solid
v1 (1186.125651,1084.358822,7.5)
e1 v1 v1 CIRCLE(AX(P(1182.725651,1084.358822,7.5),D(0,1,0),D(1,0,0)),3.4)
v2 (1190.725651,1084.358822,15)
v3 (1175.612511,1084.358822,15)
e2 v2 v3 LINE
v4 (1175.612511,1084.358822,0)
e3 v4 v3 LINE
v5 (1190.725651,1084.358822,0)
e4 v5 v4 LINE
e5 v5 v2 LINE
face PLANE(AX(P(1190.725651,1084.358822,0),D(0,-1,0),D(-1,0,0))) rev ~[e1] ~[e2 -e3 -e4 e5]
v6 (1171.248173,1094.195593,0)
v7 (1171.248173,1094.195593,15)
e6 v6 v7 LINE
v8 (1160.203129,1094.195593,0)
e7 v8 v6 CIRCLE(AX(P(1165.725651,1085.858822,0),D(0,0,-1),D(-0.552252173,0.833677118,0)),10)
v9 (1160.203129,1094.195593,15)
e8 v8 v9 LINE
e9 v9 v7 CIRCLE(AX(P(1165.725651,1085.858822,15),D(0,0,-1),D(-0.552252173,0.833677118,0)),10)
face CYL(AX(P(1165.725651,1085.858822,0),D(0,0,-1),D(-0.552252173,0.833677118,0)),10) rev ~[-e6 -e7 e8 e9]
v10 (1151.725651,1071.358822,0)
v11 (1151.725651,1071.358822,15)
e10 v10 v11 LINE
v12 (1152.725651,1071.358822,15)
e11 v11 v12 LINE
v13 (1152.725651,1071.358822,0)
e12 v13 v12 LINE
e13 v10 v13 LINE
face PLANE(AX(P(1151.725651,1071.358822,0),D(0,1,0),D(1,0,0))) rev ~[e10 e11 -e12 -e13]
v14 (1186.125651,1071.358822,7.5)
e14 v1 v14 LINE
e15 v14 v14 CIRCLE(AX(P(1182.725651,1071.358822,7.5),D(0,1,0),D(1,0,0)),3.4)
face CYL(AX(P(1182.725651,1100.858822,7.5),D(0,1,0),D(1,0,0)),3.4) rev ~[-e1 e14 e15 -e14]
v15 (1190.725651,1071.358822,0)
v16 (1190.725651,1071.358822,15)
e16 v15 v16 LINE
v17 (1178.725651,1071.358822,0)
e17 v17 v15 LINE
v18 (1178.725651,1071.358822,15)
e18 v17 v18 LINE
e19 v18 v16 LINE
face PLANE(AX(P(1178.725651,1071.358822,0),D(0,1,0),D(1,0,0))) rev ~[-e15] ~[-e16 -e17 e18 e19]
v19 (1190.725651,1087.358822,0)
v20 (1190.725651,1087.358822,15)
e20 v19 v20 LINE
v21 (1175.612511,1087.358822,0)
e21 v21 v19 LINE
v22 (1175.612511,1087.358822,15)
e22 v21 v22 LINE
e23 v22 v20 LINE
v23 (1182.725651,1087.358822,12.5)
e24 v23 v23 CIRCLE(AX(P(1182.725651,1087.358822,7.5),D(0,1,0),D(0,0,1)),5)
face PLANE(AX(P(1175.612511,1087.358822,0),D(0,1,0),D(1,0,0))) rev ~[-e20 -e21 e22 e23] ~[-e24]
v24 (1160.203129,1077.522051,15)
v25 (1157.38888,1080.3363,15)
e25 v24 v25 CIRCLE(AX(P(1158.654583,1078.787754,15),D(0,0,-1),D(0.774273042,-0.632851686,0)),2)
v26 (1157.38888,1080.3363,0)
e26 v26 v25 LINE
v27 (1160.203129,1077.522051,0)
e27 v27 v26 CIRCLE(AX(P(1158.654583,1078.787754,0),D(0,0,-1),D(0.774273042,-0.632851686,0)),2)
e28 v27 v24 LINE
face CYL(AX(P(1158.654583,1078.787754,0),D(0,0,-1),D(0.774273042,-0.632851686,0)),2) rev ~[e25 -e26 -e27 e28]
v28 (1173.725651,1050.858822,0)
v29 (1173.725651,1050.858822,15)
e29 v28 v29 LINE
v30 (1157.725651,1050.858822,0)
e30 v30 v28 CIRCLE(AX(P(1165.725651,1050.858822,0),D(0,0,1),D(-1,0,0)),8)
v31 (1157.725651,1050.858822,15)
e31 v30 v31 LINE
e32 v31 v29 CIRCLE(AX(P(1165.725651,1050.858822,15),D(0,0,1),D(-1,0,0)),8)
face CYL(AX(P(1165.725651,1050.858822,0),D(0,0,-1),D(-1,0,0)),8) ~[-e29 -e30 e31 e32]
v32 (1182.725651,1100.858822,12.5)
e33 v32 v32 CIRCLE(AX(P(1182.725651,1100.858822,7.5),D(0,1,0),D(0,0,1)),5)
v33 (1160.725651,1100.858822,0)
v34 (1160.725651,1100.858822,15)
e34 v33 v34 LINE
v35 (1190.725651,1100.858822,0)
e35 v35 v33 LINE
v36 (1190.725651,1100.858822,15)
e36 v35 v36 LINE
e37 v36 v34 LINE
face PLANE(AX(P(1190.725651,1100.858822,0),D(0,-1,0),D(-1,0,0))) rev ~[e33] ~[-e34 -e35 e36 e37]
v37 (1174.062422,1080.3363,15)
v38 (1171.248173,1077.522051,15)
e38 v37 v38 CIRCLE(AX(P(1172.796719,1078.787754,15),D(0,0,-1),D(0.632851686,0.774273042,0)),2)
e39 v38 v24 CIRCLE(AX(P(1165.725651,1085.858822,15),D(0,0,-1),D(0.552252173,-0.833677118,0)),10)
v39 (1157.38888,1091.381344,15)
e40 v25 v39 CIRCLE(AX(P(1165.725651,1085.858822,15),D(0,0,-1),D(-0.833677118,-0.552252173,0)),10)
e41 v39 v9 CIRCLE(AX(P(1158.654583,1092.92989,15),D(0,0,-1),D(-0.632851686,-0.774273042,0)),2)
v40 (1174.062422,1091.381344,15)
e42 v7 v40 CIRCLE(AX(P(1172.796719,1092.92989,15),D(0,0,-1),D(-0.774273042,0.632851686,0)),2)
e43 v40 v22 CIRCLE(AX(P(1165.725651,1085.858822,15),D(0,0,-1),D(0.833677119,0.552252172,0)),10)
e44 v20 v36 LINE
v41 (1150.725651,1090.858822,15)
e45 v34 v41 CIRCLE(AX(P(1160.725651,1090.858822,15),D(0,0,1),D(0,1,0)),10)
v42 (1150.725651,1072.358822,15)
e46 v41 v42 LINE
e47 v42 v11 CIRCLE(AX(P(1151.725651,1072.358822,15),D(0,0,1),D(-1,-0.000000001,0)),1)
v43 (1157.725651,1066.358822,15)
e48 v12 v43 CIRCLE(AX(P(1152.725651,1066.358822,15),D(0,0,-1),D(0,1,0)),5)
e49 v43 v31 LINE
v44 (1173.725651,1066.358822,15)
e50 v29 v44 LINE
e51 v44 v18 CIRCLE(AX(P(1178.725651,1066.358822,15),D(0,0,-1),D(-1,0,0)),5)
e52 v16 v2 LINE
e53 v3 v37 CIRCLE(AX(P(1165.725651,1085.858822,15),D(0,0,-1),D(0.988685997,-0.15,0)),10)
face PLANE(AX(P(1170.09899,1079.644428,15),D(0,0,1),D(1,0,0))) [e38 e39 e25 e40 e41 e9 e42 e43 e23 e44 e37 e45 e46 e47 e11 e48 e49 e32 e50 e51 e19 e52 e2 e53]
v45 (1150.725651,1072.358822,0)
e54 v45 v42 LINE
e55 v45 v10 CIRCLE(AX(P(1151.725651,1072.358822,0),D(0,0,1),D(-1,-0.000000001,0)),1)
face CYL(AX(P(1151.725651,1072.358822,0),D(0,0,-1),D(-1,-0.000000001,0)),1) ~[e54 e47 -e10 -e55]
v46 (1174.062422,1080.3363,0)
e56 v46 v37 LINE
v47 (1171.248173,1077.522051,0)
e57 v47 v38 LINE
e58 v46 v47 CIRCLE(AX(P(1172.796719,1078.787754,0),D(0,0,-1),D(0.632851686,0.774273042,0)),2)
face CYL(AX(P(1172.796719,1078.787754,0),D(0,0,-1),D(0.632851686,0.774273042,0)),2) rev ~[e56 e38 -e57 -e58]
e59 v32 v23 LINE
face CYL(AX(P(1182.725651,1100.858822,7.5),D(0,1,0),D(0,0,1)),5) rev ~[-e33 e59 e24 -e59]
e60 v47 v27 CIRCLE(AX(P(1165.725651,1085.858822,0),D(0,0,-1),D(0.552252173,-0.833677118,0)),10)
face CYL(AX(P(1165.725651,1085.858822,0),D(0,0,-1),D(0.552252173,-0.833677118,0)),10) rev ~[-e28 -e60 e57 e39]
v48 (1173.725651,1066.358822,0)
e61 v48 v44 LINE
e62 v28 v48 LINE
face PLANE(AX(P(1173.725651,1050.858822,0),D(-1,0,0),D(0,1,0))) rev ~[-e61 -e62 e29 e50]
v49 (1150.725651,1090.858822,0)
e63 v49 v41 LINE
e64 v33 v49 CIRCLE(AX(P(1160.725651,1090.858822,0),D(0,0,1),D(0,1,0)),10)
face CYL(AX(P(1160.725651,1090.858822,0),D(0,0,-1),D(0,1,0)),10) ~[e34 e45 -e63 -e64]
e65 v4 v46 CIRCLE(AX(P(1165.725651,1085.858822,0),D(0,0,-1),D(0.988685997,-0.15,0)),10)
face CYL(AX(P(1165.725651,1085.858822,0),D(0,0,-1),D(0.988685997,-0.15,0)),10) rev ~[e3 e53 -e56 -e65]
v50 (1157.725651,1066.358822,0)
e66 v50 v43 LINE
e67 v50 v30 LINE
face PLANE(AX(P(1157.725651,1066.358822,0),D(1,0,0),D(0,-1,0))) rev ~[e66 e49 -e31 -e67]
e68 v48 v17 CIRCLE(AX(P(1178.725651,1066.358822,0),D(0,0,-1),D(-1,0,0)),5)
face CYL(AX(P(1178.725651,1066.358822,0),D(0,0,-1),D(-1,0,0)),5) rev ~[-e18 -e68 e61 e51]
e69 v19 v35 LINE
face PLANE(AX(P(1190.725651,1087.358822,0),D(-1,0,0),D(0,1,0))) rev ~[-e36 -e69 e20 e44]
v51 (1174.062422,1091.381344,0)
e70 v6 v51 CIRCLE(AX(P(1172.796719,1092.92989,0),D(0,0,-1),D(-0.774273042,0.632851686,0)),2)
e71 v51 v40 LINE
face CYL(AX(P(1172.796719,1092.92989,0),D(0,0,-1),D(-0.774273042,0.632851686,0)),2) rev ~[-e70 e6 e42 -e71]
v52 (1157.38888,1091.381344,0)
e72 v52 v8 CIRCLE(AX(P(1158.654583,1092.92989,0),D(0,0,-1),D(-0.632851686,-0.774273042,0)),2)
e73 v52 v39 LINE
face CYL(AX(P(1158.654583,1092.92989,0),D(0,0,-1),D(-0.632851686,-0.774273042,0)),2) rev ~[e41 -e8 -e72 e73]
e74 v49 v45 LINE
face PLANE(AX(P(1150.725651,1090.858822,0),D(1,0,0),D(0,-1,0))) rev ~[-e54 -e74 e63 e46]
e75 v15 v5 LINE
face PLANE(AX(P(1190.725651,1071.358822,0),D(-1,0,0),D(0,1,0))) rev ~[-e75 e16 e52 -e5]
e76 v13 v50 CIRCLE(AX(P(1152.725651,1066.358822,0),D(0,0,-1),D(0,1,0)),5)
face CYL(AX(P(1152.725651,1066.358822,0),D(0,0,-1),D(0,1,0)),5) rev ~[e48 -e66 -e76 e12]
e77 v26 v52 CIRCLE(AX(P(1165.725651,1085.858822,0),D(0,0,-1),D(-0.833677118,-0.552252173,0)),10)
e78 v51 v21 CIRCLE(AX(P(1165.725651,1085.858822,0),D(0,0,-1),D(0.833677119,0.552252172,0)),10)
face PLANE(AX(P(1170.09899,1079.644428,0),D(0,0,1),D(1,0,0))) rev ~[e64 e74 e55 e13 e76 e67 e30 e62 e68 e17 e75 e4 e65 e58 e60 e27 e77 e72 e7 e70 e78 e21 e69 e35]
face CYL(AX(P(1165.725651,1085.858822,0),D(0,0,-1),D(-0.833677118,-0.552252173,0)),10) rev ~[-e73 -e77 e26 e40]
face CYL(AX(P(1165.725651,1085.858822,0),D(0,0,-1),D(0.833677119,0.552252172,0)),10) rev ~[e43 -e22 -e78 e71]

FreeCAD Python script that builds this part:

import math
import FreeCAD as App
import Part
import Sketcher
Q = App.Units.Quantity

doc = App.newDocument("Part")
body = doc.addObject("PartDesign::Body", "Body")

# Sketch on XY plane
sketch1 = body.newObject("Sketcher::SketchObject", "Sketch")
sketch1.AttachmentSupport = (doc.getObject("XY_Plane"), [""])
sketch1.MapMode = "FlatFace"
sketch1.addGeometry(Part.LineSegment(App.Vector(1175.6, 1087.4, 0), App.Vector(1190.7, 1087.4, 0)), False)
sketch1.addGeometry(Part.LineSegment(App.Vector(1190.7, 1087.4, 0), App.Vector(1190.7, 1100.9, 0)), False)
sketch1.addGeometry(Part.LineSegment(App.Vector(1190.7, 1100.9, 0), App.Vector(1160.7, 1100.9, 0)), False)
sketch1.addGeometry(Part.ArcOfCircle(Part.Circle(App.Vector(1160.7, 1090.9, 0), App.Vector(0, 0, 1), 10), math.radians(90), math.radians(180)), False)
sketch1.addGeometry(Part.LineSegment(App.Vector(1150.7, 1090.9, 0), App.Vector(1150.7, 1072.4, 0)), False)
sketch1.addGeometry(Part.ArcOfCircle(Part.Circle(App.Vector(1151.7, 1072.4, 0), App.Vector(0, 0, 1), 1), math.radians(-180), math.radians(-90)), False)
sketch1.addGeometry(Part.LineSegment(App.Vector(1151.7, 1071.4, 0), App.Vector(1152.7, 1071.4, 0)), False)
sketch1.addGeometry(Part.ArcOfCircle(Part.Circle(App.Vector(1152.7, 1066.4, 0), App.Vector(0, 0, 1), 5), math.radians(0), math.radians(90)), False)
sketch1.addGeometry(Part.LineSegment(App.Vector(1157.7, 1066.4, 0), App.Vector(1157.7, 1050.9, 0)), False)
sketch1.addGeometry(Part.ArcOfCircle(Part.Circle(App.Vector(1165.7, 1050.9, 0), App.Vector(0, 0, 1), 8), math.radians(180), math.radians(360)), False)
sketch1.addGeometry(Part.LineSegment(App.Vector(1173.7, 1050.9, 0), App.Vector(1173.7, 1066.4, 0)), False)
sketch1.addGeometry(Part.ArcOfCircle(Part.Circle(App.Vector(1178.7, 1066.4, 0), App.Vector(0, 0, 1), 5), math.radians(90), math.radians(180)), False)
sketch1.addGeometry(Part.LineSegment(App.Vector(1178.7, 1071.4, 0), App.Vector(1190.7, 1071.4, 0)), False)
sketch1.addGeometry(Part.LineSegment(App.Vector(1190.7, 1071.4, 0), App.Vector(1190.7, 1084.4, 0)), False)
sketch1.addGeometry(Part.LineSegment(App.Vector(1190.7, 1084.4, 0), App.Vector(1175.6, 1084.4, 0)), False)
sketch1.addGeometry(Part.ArcOfCircle(Part.Circle(App.Vector(1165.7, 1085.9, 0), App.Vector(0, 0, 1), 10), math.radians(-34), math.radians(-9)), False)
sketch1.addGeometry(Part.ArcOfCircle(Part.Circle(App.Vector(1172.8, 1078.8, 0), App.Vector(0, 0, 1), 2), math.radians(-141), math.radians(51)), False)
sketch1.addGeometry(Part.ArcOfCircle(Part.Circle(App.Vector(1165.7, 1085.9, 0), App.Vector(0, 0, 1), 10), math.radians(-124), math.radians(-56)), False)
sketch1.addGeometry(Part.ArcOfCircle(Part.Circle(App.Vector(1158.7, 1078.8, 0), App.Vector(0, 0, 1), 2), math.radians(129), math.radians(321)), False)
sketch1.addGeometry(Part.ArcOfCircle(Part.Circle(App.Vector(1165.7, 1085.9, 0), App.Vector(0, 0, 1), 10), math.radians(146), math.radians(214)), False)
sketch1.addGeometry(Part.ArcOfCircle(Part.Circle(App.Vector(1158.7, 1092.9, 0), App.Vector(0, 0, 1), 2), math.radians(39), math.radians(231)), False)
sketch1.addGeometry(Part.ArcOfCircle(Part.Circle(App.Vector(1165.7, 1085.9, 0), App.Vector(0, 0, 1), 10), math.radians(56), math.radians(124)), False)
sketch1.addGeometry(Part.ArcOfCircle(Part.Circle(App.Vector(1172.8, 1092.9, 0), App.Vector(0, 0, 1), 2), math.radians(-51), math.radians(141)), False)
sketch1.addGeometry(Part.ArcOfCircle(Part.Circle(App.Vector(1165.7, 1085.9, 0), App.Vector(0, 0, 1), 10), math.radians(9), math.radians(34)), False)
sketch1.addConstraint(Sketcher.Constraint("Coincident", 0, 2, 1, 1))
sketch1.addConstraint(Sketcher.Constraint("Coincident", 1, 2, 2, 1))
sketch1.addConstraint(Sketcher.Constraint("Tangent", 2, 2, 3, 1))
sketch1.addConstraint(Sketcher.Constraint("Tangent", 3, 2, 4, 1))
sketch1.addConstraint(Sketcher.Constraint("Tangent", 4, 2, 5, 1))
sketch1.addConstraint(Sketcher.Constraint("Tangent", 5, 2, 6, 1))
sketch1.addConstraint(Sketcher.Constraint("Tangent", 6, 2, 7, 2))
sketch1.addConstraint(Sketcher.Constraint("Tangent", 7, 1, 8, 1))
sketch1.addConstraint(Sketcher.Constraint("Tangent", 8, 2, 9, 1))
sketch1.addConstraint(Sketcher.Constraint("Tangent", 9, 2, 10, 1))
sketch1.addConstraint(Sketcher.Constraint("Tangent", 10, 2, 11, 2))
sketch1.addConstraint(Sketcher.Constraint("Tangent", 11, 1, 12, 1))
sketch1.addConstraint(Sketcher.Constraint("Coincident", 12, 2, 13, 1))
sketch1.addConstraint(Sketcher.Constraint("Coincident", 13, 2, 14, 1))
sketch1.addConstraint(Sketcher.Constraint("Coincident", 14, 2, 15, 2))
sketch1.addConstraint(Sketcher.Constraint("Coincident", 15, 1, 16, 2))
sketch1.addConstraint(Sketcher.Constraint("Coincident", 16, 1, 17, 2))
sketch1.addConstraint(Sketcher.Constraint("Coincident", 17, 1, 18, 2))
sketch1.addConstraint(Sketcher.Constraint("Coincident", 18, 1, 19, 2))
sketch1.addConstraint(Sketcher.Constraint("Coincident", 19, 1, 20, 2))
sketch1.addConstraint(Sketcher.Constraint("Coincident", 20, 1, 21, 2))
sketch1.addConstraint(Sketcher.Constraint("Coincident", 21, 1, 22, 2))
sketch1.addConstraint(Sketcher.Constraint("Coincident", 22, 1, 23, 2))
sketch1.addConstraint(Sketcher.Constraint("Coincident", 23, 1, 0, 1))
sketch1.addConstraint(Sketcher.Constraint("Horizontal", 0))
sketch1.addConstraint(Sketcher.Constraint("Vertical", 1))
sketch1.addConstraint(Sketcher.Constraint("Horizontal", 2))
sketch1.addConstraint(Sketcher.Constraint("Vertical", 4))
sketch1.addConstraint(Sketcher.Constraint("Horizontal", 6))
sketch1.addConstraint(Sketcher.Constraint("Vertical", 8))
sketch1.addConstraint(Sketcher.Constraint("Vertical", 10))
sketch1.addConstraint(Sketcher.Constraint("Horizontal", 12))
sketch1.addConstraint(Sketcher.Constraint("Vertical", 13))
sketch1.addConstraint(Sketcher.Constraint("Horizontal", 14))
sketch1.addConstraint(Sketcher.Constraint("Coincident", 17, 3, 15, 3))
sketch1.addConstraint(Sketcher.Constraint("Coincident", 19, 3, 15, 3))
sketch1.addConstraint(Sketcher.Constraint("Coincident", 21, 3, 15, 3))
sketch1.addConstraint(Sketcher.Constraint("Coincident", 23, 3, 15, 3))
sketch1.addConstraint(Sketcher.Constraint("Equal", 7, 11))
sketch1.addConstraint(Sketcher.Constraint("Equal", 3, 15))
sketch1.addConstraint(Sketcher.Constraint("Equal", 15, 17))
sketch1.addConstraint(Sketcher.Constraint("Equal", 16, 18))
sketch1.addConstraint(Sketcher.Constraint("Equal", 17, 19))
sketch1.addConstraint(Sketcher.Constraint("Equal", 18, 20))
sketch1.addConstraint(Sketcher.Constraint("Equal", 19, 21))
sketch1.addConstraint(Sketcher.Constraint("Equal", 20, 22))
sketch1.addConstraint(Sketcher.Constraint("Equal", 21, 23))
sketch1.addConstraint(Sketcher.Constraint("Horizontal", 7, 3, 11, 3))
sketch1.addConstraint(Sketcher.Constraint("Horizontal", 16, 3, 18, 3))
sketch1.addConstraint(Sketcher.Constraint("Horizontal", 20, 3, 22, 3))
sketch1.addConstraint(Sketcher.Constraint("Horizontal", 16, 1, 17, 1))
sketch1.addConstraint(Sketcher.Constraint("Horizontal", 20, 1, 21, 1))
sketch1.addConstraint(Sketcher.Constraint("Vertical", 9, 3, 15, 3))
sketch1.addConstraint(Sketcher.Constraint("Vertical", 18, 3, 20, 3))
sketch1.addConstraint(Sketcher.Constraint("Vertical", 1, 2, 12, 2))
sketch1.addConstraint(Sketcher.Constraint("Vertical", 18, 1, 19, 1))
sketch1.addConstraint(Sketcher.Constraint("Vertical", 14, 2, 23, 1))
sketch1.addConstraint(Sketcher.Constraint("Radius", 3, Q("10 mm")))
sketch1.addConstraint(Sketcher.Constraint("Radius", 5, Q("1 mm")))
sketch1.addConstraint(Sketcher.Constraint("Radius", 7, Q("5 mm")))
sketch1.addConstraint(Sketcher.Constraint("Radius", 9, Q("8 mm")))
sketch1.addConstraint(Sketcher.Constraint("Radius", 16, Q("2 mm")))
sketch1.addConstraint(Sketcher.Constraint("DistanceX", 2, 2, 2, 1, Q("30 mm")))
sketch1.addConstraint(Sketcher.Constraint("DistanceX", 6, 1, 6, 2, Q("1 mm")))
sketch1.addConstraint(Sketcher.Constraint("DistanceY", 13, 1, 13, 2, Q("13 mm")))
sketch1.addConstraint(Sketcher.Constraint("DistanceY", 1, 1, 1, 2, Q("13.5 mm")))
sketch1.addConstraint(Sketcher.Constraint("DistanceY", 4, 2, 4, 1, Q("18.5 mm")))
sketch1.addConstraint(Sketcher.Constraint("DistanceY", 8, 2, 8, 1, Q("15.5 mm")))
sketch1.addConstraint(Sketcher.Constraint("DistanceY", -1, 1, 15, 1, Q("1080.3363 mm")))
sketch1.addConstraint(Sketcher.Constraint("DistanceX", -1, 1, 3, 3, Q("1160.725651 mm")))
sketch1.addConstraint(Sketcher.Constraint("DistanceY", -1, 1, 3, 3, Q("1090.858822 mm")))
sketch1.addConstraint(Sketcher.Constraint("DistanceX", -1, 1, 16, 3, Q("1172.796719 mm")))
pad1 = body.newObject("PartDesign::Pad", "Pad")
pad1.Profile = sketch1
pad1.Length = 15

# Sketch on XZ plane
sketch2 = body.newObject("Sketcher::SketchObject", "Sketch001")
sketch2.AttachmentSupport = (doc.getObject("XZ_Plane"), [""])
sketch2.MapMode = "FlatFace"
sketch2.AttachmentOffset = App.Placement(App.Vector(0, 0, -1100.858822), App.Rotation())
sketch2.addGeometry(Part.Circle(App.Vector(1182.7, 7.5, 0), App.Vector(0, 0, 1), 3.4), False)
sketch2.addConstraint(Sketcher.Constraint("Diameter", 0, Q("6.8 mm")))
sketch2.addConstraint(Sketcher.Constraint("DistanceY", -1, 1, 0, 3, Q("7.5 mm")))
sketch2.addConstraint(Sketcher.Constraint("DistanceX", -1, 1, 0, 3, Q("1182.725651 mm")))
pocket1 = body.newObject("PartDesign::Pocket", "Pocket")
pocket1.Profile = sketch2
pocket1.Type = "ThroughAll"
pocket1.Reversed = True

# Sketch on XZ plane
sketch3 = body.newObject("Sketcher::SketchObject", "Sketch002")
sketch3.AttachmentSupport = (doc.getObject("XZ_Plane"), [""])
sketch3.MapMode = "FlatFace"
sketch3.AttachmentOffset = App.Placement(App.Vector(0, 0, -1100.858822), App.Rotation())
sketch3.addGeometry(Part.Circle(App.Vector(1183, 8, 0), App.Vector(0, 0, 1), 5), False)
sketch3.addConstraint(Sketcher.Constraint("Diameter", 0, Q("10 mm")))
sketch3.addConstraint(Sketcher.Constraint("DistanceY", -1, 1, 0, 3, Q("7.5 mm")))
sketch3.addConstraint(Sketcher.Constraint("DistanceX", -1, 1, 0, 3, Q("1182.725651 mm")))
pocket2 = body.newObject("PartDesign::Pocket", "Pocket001")
pocket2.Profile = sketch3
pocket2.Length = 14
pocket2.Reversed = True

doc.recompute()
